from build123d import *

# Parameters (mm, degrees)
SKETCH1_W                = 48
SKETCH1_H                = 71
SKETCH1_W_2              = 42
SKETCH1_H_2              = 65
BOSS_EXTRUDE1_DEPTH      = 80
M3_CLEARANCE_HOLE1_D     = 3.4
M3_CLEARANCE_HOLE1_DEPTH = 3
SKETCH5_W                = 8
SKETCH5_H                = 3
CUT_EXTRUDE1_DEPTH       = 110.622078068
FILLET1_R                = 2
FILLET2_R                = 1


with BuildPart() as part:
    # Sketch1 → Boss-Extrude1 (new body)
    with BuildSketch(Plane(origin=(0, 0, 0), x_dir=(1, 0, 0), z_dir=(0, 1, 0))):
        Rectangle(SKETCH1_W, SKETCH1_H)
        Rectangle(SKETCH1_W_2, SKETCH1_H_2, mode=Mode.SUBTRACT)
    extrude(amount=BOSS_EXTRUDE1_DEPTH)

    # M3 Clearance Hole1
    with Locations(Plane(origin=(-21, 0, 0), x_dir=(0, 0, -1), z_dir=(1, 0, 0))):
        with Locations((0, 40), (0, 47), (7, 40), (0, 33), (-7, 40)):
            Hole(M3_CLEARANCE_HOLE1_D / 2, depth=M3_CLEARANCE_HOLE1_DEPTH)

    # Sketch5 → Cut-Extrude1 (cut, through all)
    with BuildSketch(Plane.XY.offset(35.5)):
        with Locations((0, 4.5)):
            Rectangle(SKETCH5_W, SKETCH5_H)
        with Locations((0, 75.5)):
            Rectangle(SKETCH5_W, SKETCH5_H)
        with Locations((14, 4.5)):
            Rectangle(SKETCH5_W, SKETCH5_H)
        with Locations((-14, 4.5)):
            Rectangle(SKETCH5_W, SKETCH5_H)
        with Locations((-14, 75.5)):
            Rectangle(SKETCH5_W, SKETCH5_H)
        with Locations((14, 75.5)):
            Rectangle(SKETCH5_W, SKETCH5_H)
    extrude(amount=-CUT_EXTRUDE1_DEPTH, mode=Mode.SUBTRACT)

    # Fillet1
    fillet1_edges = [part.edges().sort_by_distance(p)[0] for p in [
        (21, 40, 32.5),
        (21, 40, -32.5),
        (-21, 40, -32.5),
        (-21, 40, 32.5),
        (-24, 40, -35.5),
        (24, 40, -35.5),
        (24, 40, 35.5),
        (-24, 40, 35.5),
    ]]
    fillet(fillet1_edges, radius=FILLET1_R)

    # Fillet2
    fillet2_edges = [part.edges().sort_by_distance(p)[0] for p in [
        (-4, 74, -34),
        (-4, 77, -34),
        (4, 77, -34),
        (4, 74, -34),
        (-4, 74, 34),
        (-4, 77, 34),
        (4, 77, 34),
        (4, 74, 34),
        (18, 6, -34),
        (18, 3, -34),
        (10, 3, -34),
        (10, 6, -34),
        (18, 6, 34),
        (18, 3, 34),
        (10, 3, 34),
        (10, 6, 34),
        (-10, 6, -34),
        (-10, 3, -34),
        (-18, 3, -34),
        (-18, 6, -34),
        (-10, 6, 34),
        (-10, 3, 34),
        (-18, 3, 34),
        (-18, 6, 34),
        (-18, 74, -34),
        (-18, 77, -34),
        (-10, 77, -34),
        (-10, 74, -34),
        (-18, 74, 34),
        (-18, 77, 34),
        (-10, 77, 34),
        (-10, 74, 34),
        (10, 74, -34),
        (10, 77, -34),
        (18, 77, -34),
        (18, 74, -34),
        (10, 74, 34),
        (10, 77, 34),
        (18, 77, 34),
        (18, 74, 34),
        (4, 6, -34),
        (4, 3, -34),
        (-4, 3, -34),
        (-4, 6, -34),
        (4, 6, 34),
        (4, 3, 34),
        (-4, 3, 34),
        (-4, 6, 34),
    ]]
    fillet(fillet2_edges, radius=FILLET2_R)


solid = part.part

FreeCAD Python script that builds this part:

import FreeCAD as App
import Part
import Sketcher
from FreeCAD import Vector
Q = App.Units.Quantity


def edges_at(feature, points):
    """Names of the edges that pass closest to the given points."""
    edges = feature.Shape.Edges
    near = lambda p: min(range(len(edges)), key=lambda i: edges[i].distToShape(Part.Vertex(*p))[0])
    return sorted({f"Edge{near(p) + 1}" for p in points})

doc = App.newDocument("Part")
body = doc.addObject("PartDesign::Body", "Body")

sketch1 = doc.addObject("Sketcher::SketchObject", "Sketch")
body.addObject(sketch1)
sketch1.AttachmentSupport = (doc.XZ_Plane, [""])
sketch1.MapMode = "FlatFace"
sketch1.addGeometry([
    Part.LineSegment(Vector(-24, -35.5, 0), Vector(-24, 35.5, 0)),
    Part.LineSegment(Vector(-24, 35.5, 0), Vector(24, 35.5, 0)),
    Part.LineSegment(Vector(24, 35.5, 0), Vector(24, -35.5, 0)),
    Part.LineSegment(Vector(24, -35.5, 0), Vector(-24, -35.5, 0)),
    Part.LineSegment(Vector(21, 32.5, 0), Vector(-21, 32.5, 0)),
    Part.LineSegment(Vector(-21, 32.5, 0), Vector(-21, -32.5, 0)),
    Part.LineSegment(Vector(-21, -32.5, 0), Vector(21, -32.5, 0)),
    Part.LineSegment(Vector(21, -32.5, 0), Vector(21, 32.5, 0)),
], False)
sketch1.addConstraint([
    Sketcher.Constraint("Coincident", 0, 2, 1, 1),
    Sketcher.Constraint("Coincident", 1, 2, 2, 1),
    Sketcher.Constraint("Coincident", 2, 2, 3, 1),
    Sketcher.Constraint("Coincident", 3, 2, 0, 1),
    Sketcher.Constraint("Coincident", 4, 2, 5, 1),
    Sketcher.Constraint("Coincident", 5, 2, 6, 1),
    Sketcher.Constraint("Coincident", 6, 2, 7, 1),
    Sketcher.Constraint("Coincident", 7, 2, 4, 1),
    Sketcher.Constraint("Vertical", 0),
    Sketcher.Constraint("Horizontal", 1),
    Sketcher.Constraint("Vertical", 2),
    Sketcher.Constraint("Horizontal", 3),
    Sketcher.Constraint("Horizontal", 4),
    Sketcher.Constraint("Vertical", 5),
    Sketcher.Constraint("Horizontal", 6),
    Sketcher.Constraint("Vertical", 7),
    Sketcher.Constraint("Symmetric", 0, 2, 2, 2, -1, 1),
    Sketcher.Constraint("Symmetric", 4, 2, 6, 2, -1, 1),
    Sketcher.Constraint("DistanceX", 1, 1, 1, 2, Q("48 mm")),
    Sketcher.Constraint("DistanceX", 4, 2, 4, 1, Q("42 mm")),
    Sketcher.Constraint("DistanceY", 0, 1, 0, 2, Q("71 mm")),
    Sketcher.Constraint("DistanceY", 5, 2, 5, 1, Q("65 mm")),
])
pad1 = doc.addObject("PartDesign::Pad", "Pad")
body.addObject(pad1)
pad1.Profile = sketch1
pad1.Length = 80
pad1.Reversed = True

sketch2 = doc.addObject("Sketcher::SketchObject", "Sketch001")
body.addObject(sketch2)
sketch2.AttachmentSupport = (doc.YZ_Plane, [""])
sketch2.MapMode = "FlatFace"
sketch2.AttachmentOffset = App.Placement(Vector(0, 0, -21), App.Rotation())
sketch2.addGeometry([
    Part.Circle(Vector(40, 0, 0), Vector(0, 0, 1), 1.7),
    Part.Circle(Vector(47, 0, 0), Vector(0, 0, 1), 1.7),
    Part.Circle(Vector(40, -7, 0), Vector(0, 0, 1), 1.7),
    Part.Circle(Vector(33, 0, 0), Vector(0, 0, 1), 1.7),
    Part.Circle(Vector(40, 7, 0), Vector(0, 0, 1), 1.7),
], False)
sketch2.addConstraint([
    Sketcher.Constraint("Equal", 0, 1),
    Sketcher.Constraint("Equal", 1, 2),
    Sketcher.Constraint("Equal", 2, 3),
    Sketcher.Constraint("Equal", 3, 4),
    Sketcher.Constraint("Symmetric", 2, 3, 4, 3, -1),
    Sketcher.Constraint("PointOnObject", 0, 3, -1),
    Sketcher.Constraint("PointOnObject", 1, 3, -1),
    Sketcher.Constraint("PointOnObject", 3, 3, -1),
    Sketcher.Constraint("Vertical", 0, 3, 2, 3),
    Sketcher.Constraint("Diameter", 0, Q("3.4 mm")),
    Sketcher.Constraint("DistanceX", -1, 1, 0, 3, Q("40 mm")),
    Sketcher.Constraint("DistanceX", -1, 1, 1, 3, Q("47 mm")),
    Sketcher.Constraint("DistanceY", 2, 3, -1, 1, Q("7 mm")),
    Sketcher.Constraint("DistanceX", -1, 1, 3, 3, Q("33 mm")),
])
doc.recompute()
hole = doc.addObject("PartDesign::Hole", "Hole")
body.addObject(hole)
hole.Profile = sketch2
hole.ThreadType = "None"
hole.Diameter = 3.4
hole.DepthType = "Dimension"
hole.Depth = 3
hole.DrillPoint = "Flat"

sketch3 = doc.addObject("Sketcher::SketchObject", "Sketch002")
body.addObject(sketch3)
sketch3.AttachmentSupport = (doc.XY_Plane, [""])
sketch3.MapMode = "FlatFace"
sketch3.AttachmentOffset = App.Placement(Vector(0, 0, 35.5), App.Rotation())
sketch3.addGeometry([
    Part.LineSegment(Vector(-4, 6, 0), Vector(-4, 3, 0)),
    Part.LineSegment(Vector(-4, 3, 0), Vector(4, 3, 0)),
    Part.LineSegment(Vector(4, 3, 0), Vector(4, 6, 0)),
    Part.LineSegment(Vector(4, 6, 0), Vector(-4, 6, 0)),
    Part.LineSegment(Vector(-4, 77, 0), Vector(-4, 74, 0)),
    Part.LineSegment(Vector(-4, 74, 0), Vector(4, 74, 0)),
    Part.LineSegment(Vector(4, 74, 0), Vector(4, 77, 0)),
    Part.LineSegment(Vector(4, 77, 0), Vector(-4, 77, 0)),
    Part.LineSegment(Vector(10, 6, 0), Vector(10, 3, 0)),
    Part.LineSegment(Vector(10, 3, 0), Vector(18, 3, 0)),
    Part.LineSegment(Vector(18, 3, 0), Vector(18, 6, 0)),
    Part.LineSegment(Vector(18, 6, 0), Vector(10, 6, 0)),
    Part.LineSegment(Vector(-18, 6, 0), Vector(-18, 3, 0)),
    Part.LineSegment(Vector(-18, 3, 0), Vector(-10, 3, 0)),
    Part.LineSegment(Vector(-10, 3, 0), Vector(-10, 6, 0)),
    Part.LineSegment(Vector(-10, 6, 0), Vector(-18, 6, 0)),
    Part.LineSegment(Vector(-18, 77, 0), Vector(-18, 74, 0)),
    Part.LineSegment(Vector(-18, 74, 0), Vector(-10, 74, 0)),
    Part.LineSegment(Vector(-10, 74, 0), Vector(-10, 77, 0)),
    Part.LineSegment(Vector(-10, 77, 0), Vector(-18, 77, 0)),
    Part.LineSegment(Vector(10, 77, 0), Vector(10, 74, 0)),
    Part.LineSegment(Vector(10, 74, 0), Vector(18, 74, 0)),
    Part.LineSegment(Vector(18, 74, 0), Vector(18, 77, 0)),
    Part.LineSegment(Vector(18, 77, 0), Vector(10, 77, 0)),
], False)
sketch3.addConstraint([
    Sketcher.Constraint("Coincident", 0, 2, 1, 1),
    Sketcher.Constraint("Coincident", 1, 2, 2, 1),
    Sketcher.Constraint("Coincident", 2, 2, 3, 1),
    Sketcher.Constraint("Coincident", 3, 2, 0, 1),
    Sketcher.Constraint("Coincident", 4, 2, 5, 1),
    Sketcher.Constraint("Coincident", 5, 2, 6, 1),
    Sketcher.Constraint("Coincident", 6, 2, 7, 1),
    Sketcher.Constraint("Coincident", 7, 2, 4, 1),
    Sketcher.Constraint("Coincident", 8, 2, 9, 1),
    Sketcher.Constraint("Coincident", 9, 2, 10, 1),
    Sketcher.Constraint("Coincident", 10, 2, 11, 1),
    Sketcher.Constraint("Coincident", 11, 2, 8, 1),
    Sketcher.Constraint("Coincident", 12, 2, 13, 1),
    Sketcher.Constraint("Coincident", 13, 2, 14, 1),
    Sketcher.Constraint("Coincident", 14, 2, 15, 1),
    Sketcher.Constraint("Coincident", 15, 2, 12, 1),
    Sketcher.Constraint("Coincident", 16, 2, 17, 1),
    Sketcher.Constraint("Coincident", 17, 2, 18, 1),
    Sketcher.Constraint("Coincident", 18, 2, 19, 1),
    Sketcher.Constraint("Coincident", 19, 2, 16, 1),
    Sketcher.Constraint("Coincident", 20, 2, 21, 1),
    Sketcher.Constraint("Coincident", 21, 2, 22, 1),
    Sketcher.Constraint("Coincident", 22, 2, 23, 1),
    Sketcher.Constraint("Coincident", 23, 2, 20, 1),
    Sketcher.Constraint("Vertical", 0),
    Sketcher.Constraint("Horizontal", 1),
    Sketcher.Constraint("Vertical", 2),
    Sketcher.Constraint("Horizontal", 3),
    Sketcher.Constraint("Vertical", 4),
    Sketcher.Constraint("Horizontal", 5),
    Sketcher.Constraint("Vertical", 6),
    Sketcher.Constraint("Horizontal", 7),
    Sketcher.Constraint("Vertical", 8),
    Sketcher.Constraint("Horizontal", 9),
    Sketcher.Constraint("Vertical", 10),
    Sketcher.Constraint("Horizontal", 11),
    Sketcher.Constraint("Vertical", 12),
    Sketcher.Constraint("Horizontal", 13),
    Sketcher.Constraint("Vertical", 14),
    Sketcher.Constraint("Horizontal", 15),
    Sketcher.Constraint("Vertical", 16),
    Sketcher.Constraint("Horizontal", 17),
    Sketcher.Constraint("Vertical", 18),
    Sketcher.Constraint("Horizontal", 19),
    Sketcher.Constraint("Vertical", 20),
    Sketcher.Constraint("Horizontal", 21),
    Sketcher.Constraint("Vertical", 22),
    Sketcher.Constraint("Horizontal", 23),
    Sketcher.Constraint("Symmetric", 9, 2, 12, 2, -2),
    Sketcher.Constraint("Symmetric", 11, 2, 14, 2, -2),
    Sketcher.Constraint("Symmetric", 17, 2, 20, 2, -2),
    Sketcher.Constraint("Symmetric", 19, 2, 22, 2, -2),
    Sketcher.Constraint("Horizontal", 1, 2, 8, 2),
    Sketcher.Constraint("Horizontal", 3, 2, 10, 2),
    Sketcher.Constraint("Horizontal", 5, 2, 16, 2),
    Sketcher.Constraint("Horizontal", 7, 2, 18, 2),
    Sketcher.Constraint("Vertical", 3, 2, 4, 2),
    Sketcher.Constraint("Vertical", 2, 2, 5, 2),
    Sketcher.Constraint("Vertical", 15, 2, 16, 2),
    Sketcher.Constraint("Vertical", 14, 2, 17, 2),
    Sketcher.Constraint("Equal", 7, 9),
    Sketcher.Constraint("Equal", 2, 4),
    Sketcher.Constraint("DistanceX", 1, 1, 1, 2, Q("8 mm")),
    Sketcher.Constraint("DistanceY", 0, 2, 0, 1, Q("3 mm")),
    Sketcher.Constraint("DistanceX", 0, 2, -1, 1, Q("4 mm")),
    Sketcher.Constraint("DistanceY", -1, 1, 0, 2, Q("3 mm")),
    Sketcher.Constraint("DistanceY", -1, 1, 4, 2, Q("74 mm")),
    Sketcher.Constraint("DistanceX", -1, 1, 8, 2, Q("10 mm")),
])
pocket1 = doc.addObject("PartDesign::Pocket", "Pocket")
body.addObject(pocket1)
pocket1.Profile = sketch3
pocket1.Type = "ThroughAll"
doc.recompute()

fillet = doc.addObject("PartDesign::Fillet", "Fillet")
body.addObject(fillet)
fillet.Base = (pocket1, edges_at(pocket1, [
    (21, 40, 32.5),
    (21, 40, -32.5),
    (-21, 40, -32.5),
    (-21, 40, 32.5),
    (-24, 40, -35.5),
    (24, 40, -35.5),
    (24, 40, 35.5),
    (-24, 40, 35.5),
]))
fillet.Radius = 2
doc.recompute()

fillet2 = doc.addObject("PartDesign::Fillet", "Fillet001")
body.addObject(fillet2)
fillet2.Base = (fillet, edges_at(fillet, [
    (-4, 74, -34),
    (-4, 77, -34),
    (4, 77, -34),
    (4, 74, -34),
    (-4, 74, 34),
    (-4, 77, 34),
    (4, 77, 34),
    (4, 74, 34),
    (18, 6, -34),
    (18, 3, -34),
    (10, 3, -34),
    (10, 6, -34),
    (18, 6, 34),
    (18, 3, 34),
    (10, 3, 34),
    (10, 6, 34),
    (-10, 6, -34),
    (-10, 3, -34),
    (-18, 3, -34),
    (-18, 6, -34),
    (-10, 6, 34),
    (-10, 3, 34),
    (-18, 3, 34),
    (-18, 6, 34),
    (-18, 74, -34),
    (-18, 77, -34),
    (-10, 77, -34),
    (-10, 74, -34),
    (-18, 74, 34),
    (-18, 77, 34),
    (-10, 77, 34),
    (-10, 74, 34),
    (10, 74, -34),
    (10, 77, -34),
    (18, 77, -34),
    (18, 74, -34),
    (10, 74, 34),
    (10, 77, 34),
    (18, 77, 34),
    (18, 74, 34),
    (4, 6, -34),
    (4, 3, -34),
    (-4, 3, -34),
    (-4, 6, -34),
    (4, 6, 34),
    (4, 3, 34),
    (-4, 3, 34),
    (-4, 6, 34),
]))
fillet2.Radius = 1

doc.recompute()
